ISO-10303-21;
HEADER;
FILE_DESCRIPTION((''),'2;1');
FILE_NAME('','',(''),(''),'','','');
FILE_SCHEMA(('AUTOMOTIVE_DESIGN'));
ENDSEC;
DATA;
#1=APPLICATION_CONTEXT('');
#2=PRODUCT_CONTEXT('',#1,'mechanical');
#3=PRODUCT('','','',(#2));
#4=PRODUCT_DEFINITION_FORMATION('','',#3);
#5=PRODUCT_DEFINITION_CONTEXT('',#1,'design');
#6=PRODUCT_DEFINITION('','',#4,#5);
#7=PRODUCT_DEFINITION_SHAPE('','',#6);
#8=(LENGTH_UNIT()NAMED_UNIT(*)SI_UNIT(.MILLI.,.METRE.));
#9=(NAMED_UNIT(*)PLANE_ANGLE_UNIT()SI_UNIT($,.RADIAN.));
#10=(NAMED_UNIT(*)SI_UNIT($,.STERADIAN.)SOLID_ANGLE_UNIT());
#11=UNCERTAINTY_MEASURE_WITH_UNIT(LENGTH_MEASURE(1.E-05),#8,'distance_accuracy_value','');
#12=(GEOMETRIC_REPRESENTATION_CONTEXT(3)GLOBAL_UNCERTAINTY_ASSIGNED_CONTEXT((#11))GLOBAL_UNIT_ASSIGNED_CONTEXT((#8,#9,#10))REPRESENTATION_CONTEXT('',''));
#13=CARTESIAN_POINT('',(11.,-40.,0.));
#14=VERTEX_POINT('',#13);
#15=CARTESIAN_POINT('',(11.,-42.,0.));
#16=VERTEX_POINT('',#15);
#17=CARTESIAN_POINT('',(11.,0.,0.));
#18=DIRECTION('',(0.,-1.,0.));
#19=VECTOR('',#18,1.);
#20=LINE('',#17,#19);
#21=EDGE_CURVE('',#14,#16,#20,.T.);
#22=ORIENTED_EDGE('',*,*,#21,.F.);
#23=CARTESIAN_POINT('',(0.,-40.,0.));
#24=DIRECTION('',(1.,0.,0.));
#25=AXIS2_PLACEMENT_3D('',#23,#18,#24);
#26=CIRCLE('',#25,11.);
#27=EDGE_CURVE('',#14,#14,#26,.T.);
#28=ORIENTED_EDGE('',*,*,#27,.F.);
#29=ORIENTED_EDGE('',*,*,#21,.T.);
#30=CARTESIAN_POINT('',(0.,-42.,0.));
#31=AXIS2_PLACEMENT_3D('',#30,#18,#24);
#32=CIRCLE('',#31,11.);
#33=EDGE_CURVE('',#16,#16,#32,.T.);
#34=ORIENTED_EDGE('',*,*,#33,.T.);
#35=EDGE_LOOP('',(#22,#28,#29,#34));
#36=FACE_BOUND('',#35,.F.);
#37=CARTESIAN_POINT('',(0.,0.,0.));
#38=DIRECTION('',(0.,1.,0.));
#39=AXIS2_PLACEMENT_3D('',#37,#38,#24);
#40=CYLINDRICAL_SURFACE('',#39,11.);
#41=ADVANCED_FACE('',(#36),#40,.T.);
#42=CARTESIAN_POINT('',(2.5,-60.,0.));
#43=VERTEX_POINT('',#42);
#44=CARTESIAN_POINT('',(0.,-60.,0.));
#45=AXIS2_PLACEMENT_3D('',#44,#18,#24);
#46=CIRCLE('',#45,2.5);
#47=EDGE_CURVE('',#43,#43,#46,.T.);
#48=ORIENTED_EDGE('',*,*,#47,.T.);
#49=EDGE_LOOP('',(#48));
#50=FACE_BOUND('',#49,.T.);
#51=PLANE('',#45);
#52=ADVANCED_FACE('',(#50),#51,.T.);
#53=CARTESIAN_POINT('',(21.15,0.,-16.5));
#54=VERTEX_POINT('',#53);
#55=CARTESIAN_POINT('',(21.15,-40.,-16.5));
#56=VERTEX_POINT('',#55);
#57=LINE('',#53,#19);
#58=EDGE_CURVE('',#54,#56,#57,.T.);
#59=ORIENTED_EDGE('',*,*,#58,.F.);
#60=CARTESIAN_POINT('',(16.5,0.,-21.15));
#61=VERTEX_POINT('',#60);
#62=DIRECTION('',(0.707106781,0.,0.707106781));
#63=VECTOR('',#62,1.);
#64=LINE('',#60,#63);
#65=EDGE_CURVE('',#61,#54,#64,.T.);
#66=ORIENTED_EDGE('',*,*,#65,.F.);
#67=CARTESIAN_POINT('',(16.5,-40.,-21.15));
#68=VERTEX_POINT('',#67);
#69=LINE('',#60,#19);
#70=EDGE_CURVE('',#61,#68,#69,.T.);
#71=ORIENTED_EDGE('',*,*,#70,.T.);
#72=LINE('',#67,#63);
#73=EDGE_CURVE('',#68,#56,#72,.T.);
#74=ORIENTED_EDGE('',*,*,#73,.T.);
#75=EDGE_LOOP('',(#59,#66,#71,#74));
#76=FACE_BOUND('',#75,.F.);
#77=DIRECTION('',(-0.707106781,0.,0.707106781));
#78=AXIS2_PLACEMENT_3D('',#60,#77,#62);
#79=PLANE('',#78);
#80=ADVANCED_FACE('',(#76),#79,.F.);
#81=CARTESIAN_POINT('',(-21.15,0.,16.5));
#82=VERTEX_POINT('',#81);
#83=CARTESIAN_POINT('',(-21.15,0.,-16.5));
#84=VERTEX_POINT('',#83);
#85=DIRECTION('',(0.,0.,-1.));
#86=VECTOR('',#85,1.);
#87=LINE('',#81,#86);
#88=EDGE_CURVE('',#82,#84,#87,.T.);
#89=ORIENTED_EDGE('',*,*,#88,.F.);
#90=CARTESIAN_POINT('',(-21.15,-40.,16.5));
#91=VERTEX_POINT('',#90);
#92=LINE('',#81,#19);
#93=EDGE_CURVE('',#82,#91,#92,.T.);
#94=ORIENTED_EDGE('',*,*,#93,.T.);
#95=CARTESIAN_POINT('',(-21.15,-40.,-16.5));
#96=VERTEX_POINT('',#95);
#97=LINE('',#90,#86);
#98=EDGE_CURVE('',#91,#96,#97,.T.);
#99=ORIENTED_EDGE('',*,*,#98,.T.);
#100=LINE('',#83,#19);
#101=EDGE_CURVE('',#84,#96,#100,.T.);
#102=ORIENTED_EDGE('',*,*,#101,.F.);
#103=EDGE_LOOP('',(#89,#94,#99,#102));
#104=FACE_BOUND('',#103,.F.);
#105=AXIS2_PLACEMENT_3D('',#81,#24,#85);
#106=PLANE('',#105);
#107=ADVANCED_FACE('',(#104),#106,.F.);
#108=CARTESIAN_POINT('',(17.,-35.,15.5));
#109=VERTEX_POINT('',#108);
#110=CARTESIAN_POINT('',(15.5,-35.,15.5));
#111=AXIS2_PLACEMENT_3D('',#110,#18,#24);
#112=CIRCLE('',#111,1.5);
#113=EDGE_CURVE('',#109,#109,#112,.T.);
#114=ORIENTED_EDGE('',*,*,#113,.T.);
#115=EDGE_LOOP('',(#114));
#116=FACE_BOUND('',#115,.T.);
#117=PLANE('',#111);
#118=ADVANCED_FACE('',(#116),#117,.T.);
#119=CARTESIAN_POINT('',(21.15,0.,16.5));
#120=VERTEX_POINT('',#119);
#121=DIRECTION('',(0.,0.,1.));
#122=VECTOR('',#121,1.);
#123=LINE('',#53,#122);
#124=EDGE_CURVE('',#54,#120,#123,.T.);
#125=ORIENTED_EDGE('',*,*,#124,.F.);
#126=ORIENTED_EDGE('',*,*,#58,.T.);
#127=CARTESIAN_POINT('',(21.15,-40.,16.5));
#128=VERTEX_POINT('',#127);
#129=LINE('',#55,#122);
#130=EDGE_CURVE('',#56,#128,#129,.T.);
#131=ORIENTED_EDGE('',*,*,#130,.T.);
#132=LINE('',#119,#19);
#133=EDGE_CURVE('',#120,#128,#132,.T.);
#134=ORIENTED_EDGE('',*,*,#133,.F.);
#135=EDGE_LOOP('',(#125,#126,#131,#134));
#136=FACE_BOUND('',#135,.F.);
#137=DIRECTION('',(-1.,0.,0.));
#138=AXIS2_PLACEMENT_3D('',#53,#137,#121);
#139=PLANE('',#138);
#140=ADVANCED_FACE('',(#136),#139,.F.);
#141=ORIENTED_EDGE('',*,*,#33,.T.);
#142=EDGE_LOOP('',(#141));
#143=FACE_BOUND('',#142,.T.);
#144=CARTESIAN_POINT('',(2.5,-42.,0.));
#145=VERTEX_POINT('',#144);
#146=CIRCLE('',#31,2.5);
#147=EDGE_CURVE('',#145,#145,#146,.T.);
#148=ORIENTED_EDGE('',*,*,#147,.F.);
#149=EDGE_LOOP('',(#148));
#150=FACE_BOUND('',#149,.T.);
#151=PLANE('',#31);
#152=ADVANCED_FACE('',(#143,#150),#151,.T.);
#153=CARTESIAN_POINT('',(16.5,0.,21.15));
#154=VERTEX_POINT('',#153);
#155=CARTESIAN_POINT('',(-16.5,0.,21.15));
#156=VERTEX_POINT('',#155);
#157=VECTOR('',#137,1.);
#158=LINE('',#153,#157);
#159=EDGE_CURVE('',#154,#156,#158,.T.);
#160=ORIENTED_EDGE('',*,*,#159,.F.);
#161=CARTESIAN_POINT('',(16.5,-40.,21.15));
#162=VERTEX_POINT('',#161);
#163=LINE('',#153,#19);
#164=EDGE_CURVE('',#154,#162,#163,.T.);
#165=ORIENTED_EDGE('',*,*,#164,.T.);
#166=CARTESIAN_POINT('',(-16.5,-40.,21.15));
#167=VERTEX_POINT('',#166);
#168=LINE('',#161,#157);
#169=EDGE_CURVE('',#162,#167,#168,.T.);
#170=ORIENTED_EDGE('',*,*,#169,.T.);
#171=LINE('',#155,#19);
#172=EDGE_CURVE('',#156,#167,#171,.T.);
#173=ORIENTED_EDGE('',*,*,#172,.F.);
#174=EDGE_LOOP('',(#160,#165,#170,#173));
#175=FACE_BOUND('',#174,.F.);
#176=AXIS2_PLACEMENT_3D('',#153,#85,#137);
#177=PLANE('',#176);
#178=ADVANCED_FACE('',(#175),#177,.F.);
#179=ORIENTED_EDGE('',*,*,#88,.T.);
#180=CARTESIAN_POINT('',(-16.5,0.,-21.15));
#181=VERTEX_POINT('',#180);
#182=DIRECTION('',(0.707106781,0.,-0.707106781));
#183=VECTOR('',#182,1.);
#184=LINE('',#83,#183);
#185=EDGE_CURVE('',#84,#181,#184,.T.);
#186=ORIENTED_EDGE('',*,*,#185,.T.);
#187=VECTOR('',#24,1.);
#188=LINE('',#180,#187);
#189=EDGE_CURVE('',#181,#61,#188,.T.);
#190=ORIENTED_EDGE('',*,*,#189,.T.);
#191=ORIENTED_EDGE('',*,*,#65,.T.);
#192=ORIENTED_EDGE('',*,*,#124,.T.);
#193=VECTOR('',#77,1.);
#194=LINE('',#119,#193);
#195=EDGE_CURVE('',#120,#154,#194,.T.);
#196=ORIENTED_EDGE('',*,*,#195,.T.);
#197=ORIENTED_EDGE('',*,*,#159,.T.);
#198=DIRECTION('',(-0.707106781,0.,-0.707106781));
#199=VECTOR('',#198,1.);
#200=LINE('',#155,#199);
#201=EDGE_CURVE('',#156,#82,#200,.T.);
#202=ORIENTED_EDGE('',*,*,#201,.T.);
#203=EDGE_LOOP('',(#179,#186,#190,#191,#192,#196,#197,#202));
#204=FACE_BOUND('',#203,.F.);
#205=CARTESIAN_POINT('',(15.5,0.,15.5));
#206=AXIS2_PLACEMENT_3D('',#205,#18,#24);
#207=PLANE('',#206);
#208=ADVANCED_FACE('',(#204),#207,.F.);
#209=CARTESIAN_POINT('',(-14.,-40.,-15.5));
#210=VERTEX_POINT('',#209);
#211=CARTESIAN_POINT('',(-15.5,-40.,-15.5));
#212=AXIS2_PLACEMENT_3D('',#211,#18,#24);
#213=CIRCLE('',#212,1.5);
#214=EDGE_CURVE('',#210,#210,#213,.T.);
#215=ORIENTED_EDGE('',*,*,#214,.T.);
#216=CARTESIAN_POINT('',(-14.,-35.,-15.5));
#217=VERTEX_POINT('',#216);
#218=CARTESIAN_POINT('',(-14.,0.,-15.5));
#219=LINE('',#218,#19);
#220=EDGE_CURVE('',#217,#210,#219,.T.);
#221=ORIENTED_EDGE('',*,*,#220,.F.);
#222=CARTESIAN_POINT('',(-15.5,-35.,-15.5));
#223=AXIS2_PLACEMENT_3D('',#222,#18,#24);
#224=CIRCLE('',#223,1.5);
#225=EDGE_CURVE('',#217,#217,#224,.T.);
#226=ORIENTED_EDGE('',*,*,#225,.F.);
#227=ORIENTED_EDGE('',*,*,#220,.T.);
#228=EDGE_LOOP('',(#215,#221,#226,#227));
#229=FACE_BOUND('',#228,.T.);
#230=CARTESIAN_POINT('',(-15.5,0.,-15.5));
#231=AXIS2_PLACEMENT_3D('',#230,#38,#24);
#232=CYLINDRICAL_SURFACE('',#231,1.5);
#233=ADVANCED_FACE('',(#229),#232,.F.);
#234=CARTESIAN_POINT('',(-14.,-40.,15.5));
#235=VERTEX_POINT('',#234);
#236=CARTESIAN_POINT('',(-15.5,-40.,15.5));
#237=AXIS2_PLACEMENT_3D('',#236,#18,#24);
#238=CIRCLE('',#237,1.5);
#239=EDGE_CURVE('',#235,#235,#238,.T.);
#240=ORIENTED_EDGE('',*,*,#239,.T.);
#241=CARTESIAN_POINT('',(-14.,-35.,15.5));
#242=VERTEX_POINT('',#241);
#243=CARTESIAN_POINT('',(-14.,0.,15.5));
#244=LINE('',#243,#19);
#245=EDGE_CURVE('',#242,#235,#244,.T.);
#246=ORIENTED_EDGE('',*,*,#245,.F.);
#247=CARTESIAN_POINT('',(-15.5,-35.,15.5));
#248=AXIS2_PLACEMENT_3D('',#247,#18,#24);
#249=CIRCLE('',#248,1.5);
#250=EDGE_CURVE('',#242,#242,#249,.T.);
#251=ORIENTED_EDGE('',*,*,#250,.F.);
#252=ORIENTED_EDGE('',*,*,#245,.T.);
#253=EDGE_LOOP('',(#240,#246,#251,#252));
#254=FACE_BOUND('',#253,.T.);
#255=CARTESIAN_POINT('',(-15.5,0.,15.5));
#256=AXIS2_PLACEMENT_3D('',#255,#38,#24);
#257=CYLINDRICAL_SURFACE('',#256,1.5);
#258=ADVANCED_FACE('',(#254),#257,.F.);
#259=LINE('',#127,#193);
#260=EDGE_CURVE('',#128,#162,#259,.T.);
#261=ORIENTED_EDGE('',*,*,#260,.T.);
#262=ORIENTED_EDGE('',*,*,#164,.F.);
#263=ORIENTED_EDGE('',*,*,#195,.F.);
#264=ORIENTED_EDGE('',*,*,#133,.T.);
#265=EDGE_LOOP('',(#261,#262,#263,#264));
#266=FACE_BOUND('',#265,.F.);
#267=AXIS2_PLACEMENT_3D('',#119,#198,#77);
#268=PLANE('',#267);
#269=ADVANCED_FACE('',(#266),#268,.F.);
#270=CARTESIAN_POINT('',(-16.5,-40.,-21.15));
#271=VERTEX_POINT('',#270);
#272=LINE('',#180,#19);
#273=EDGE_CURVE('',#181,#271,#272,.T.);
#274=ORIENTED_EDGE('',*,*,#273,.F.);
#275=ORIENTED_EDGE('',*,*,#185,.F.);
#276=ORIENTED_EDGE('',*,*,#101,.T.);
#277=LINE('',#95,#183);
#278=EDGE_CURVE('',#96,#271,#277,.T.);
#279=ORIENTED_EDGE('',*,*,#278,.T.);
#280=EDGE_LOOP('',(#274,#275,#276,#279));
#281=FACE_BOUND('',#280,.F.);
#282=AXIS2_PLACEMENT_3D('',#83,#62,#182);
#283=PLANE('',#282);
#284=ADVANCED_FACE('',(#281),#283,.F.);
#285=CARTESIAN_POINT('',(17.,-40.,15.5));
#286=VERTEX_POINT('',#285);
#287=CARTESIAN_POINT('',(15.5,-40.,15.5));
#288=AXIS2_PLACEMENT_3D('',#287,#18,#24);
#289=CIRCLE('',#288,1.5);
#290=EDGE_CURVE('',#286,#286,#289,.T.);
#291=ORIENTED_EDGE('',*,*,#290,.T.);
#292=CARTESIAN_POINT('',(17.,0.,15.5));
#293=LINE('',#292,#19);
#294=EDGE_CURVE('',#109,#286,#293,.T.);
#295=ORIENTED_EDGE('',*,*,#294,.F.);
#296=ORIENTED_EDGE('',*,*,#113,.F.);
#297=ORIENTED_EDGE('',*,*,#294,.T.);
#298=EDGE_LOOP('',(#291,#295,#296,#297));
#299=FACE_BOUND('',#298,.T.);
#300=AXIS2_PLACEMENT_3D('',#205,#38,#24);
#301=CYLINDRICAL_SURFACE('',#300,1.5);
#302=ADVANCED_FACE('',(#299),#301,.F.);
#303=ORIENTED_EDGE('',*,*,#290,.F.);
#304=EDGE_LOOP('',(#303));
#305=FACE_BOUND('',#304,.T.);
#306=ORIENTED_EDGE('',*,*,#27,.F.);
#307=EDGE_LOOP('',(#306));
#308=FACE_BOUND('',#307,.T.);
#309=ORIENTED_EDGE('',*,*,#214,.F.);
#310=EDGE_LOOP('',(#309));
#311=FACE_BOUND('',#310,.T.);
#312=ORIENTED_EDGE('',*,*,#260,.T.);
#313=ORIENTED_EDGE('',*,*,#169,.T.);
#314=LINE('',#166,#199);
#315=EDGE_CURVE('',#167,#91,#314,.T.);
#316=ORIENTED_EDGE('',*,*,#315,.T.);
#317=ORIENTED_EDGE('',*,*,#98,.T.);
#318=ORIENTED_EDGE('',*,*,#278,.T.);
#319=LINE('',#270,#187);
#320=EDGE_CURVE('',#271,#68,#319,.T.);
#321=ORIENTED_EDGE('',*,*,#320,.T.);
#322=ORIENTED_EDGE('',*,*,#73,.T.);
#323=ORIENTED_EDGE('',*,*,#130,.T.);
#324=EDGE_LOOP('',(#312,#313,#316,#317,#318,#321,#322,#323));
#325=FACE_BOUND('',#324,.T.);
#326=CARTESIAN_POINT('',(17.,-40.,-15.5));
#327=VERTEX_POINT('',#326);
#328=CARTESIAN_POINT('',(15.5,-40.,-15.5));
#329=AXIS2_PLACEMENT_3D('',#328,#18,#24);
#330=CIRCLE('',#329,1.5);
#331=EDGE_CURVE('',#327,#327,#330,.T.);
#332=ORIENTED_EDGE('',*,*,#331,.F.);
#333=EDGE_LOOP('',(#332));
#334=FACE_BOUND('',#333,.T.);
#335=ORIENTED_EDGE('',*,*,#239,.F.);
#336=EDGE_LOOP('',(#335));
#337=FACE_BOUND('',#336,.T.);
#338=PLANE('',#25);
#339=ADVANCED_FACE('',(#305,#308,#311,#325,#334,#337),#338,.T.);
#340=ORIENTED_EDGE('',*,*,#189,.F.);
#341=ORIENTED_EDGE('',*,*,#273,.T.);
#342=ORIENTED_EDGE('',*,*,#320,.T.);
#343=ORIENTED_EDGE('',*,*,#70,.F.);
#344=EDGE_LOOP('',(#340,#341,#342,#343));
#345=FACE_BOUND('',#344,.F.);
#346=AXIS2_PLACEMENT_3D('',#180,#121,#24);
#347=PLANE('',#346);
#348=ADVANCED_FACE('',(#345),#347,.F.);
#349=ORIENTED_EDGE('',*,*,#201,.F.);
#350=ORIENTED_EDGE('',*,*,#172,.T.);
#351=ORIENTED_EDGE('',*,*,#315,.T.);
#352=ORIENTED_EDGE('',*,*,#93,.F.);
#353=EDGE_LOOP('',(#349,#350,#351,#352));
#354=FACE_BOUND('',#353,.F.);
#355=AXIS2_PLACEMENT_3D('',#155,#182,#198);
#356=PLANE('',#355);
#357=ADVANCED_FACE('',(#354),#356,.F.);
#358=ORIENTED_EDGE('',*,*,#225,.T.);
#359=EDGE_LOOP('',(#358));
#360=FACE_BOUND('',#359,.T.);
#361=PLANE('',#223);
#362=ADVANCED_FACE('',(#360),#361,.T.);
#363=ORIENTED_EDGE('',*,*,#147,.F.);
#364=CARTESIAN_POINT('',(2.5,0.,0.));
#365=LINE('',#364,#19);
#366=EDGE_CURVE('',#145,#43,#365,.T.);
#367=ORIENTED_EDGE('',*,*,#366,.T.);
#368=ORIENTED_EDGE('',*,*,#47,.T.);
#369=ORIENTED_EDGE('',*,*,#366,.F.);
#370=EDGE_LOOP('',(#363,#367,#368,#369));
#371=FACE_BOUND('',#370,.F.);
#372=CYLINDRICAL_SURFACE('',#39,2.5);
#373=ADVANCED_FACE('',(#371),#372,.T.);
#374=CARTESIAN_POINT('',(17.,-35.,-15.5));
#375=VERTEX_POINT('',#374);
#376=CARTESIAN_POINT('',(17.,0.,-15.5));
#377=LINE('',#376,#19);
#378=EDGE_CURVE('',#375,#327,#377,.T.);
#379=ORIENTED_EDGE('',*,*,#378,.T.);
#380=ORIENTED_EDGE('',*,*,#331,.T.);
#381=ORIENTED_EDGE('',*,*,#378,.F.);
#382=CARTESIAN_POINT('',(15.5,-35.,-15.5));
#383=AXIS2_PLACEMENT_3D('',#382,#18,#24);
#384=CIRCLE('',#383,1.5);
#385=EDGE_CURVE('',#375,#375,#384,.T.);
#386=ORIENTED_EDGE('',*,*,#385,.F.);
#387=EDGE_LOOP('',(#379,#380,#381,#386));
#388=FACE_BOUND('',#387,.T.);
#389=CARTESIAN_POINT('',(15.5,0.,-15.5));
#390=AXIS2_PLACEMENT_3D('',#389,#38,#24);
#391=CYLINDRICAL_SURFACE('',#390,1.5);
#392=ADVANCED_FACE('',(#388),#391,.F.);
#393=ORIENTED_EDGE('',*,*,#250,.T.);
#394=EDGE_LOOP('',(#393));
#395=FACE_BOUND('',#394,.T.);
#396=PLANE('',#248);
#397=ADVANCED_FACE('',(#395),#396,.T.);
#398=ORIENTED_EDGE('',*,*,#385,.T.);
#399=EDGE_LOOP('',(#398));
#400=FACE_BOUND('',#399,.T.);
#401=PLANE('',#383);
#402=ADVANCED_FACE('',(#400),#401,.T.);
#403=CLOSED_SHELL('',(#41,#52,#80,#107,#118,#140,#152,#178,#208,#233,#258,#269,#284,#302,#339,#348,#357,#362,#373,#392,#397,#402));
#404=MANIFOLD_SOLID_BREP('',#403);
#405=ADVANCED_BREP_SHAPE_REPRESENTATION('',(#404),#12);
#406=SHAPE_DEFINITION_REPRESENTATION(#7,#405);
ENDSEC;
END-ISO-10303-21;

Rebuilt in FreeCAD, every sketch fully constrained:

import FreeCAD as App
import Part
import Sketcher

V = App.Vector
Q = App.Units.Quantity


def add_polygon(sketch, points):
    """Adds a closed chain of lines whose ends are joined by coincident constraints."""
    first, n = sketch.GeometryCount, len(points)
    for a, b in zip(points, points[1:] + points[:1]):
        sketch.addGeometry(Part.LineSegment(App.Vector(*a, 0), App.Vector(*b, 0)), False)
    for i in range(n):
        sketch.addConstraint(Sketcher.Constraint("Coincident", first + i, 2, first + (i + 1) % n, 1))

doc = App.newDocument("Part")
body = doc.addObject("PartDesign::Body", "Body")

# Sketch on XZ plane
sketch1 = body.newObject("Sketcher::SketchObject", "Sketch")
sketch1.AttachmentSupport = (doc.getObject("XZ_Plane"), [""])
sketch1.MapMode = "FlatFace"
add_polygon(sketch1, [(-16.5, -21.1), (16.5, -21.1), (21.1, -16.5), (21.1, 16.5), (16.5, 21.1), (-16.5, 21.1), (-21.1, 16.5), (-21.1, -16.5)])  # lines 0-7
sketch1.addGeometry(Part.Circle(V(-15.5, -15.5, 0), V(0, 0, 1), 1.5), False)  # 8
sketch1.addGeometry(Part.Circle(V(15.5, -15.5, 0), V(0, 0, 1), 1.5), False)  # 9
sketch1.addGeometry(Part.Circle(V(-15.5, 15.5, 0), V(0, 0, 1), 1.5), False)  # 10
sketch1.addGeometry(Part.Circle(V(0, 0, 0), V(0, 0, 1), 11), False)  # 11
sketch1.addGeometry(Part.Circle(V(15.5, 15.5, 0), V(0, 0, 1), 1.5), False)  # 12
sketch1.addConstraint(Sketcher.Constraint("Horizontal", 0))
sketch1.addConstraint(Sketcher.Constraint("Vertical", 2))
sketch1.addConstraint(Sketcher.Constraint("Horizontal", 4))
sketch1.addConstraint(Sketcher.Constraint("Vertical", 6))
sketch1.addConstraint(Sketcher.Constraint("Coincident", 11, 3, -1, 1))
sketch1.addConstraint(Sketcher.Constraint("Equal", 8, 9))
sketch1.addConstraint(Sketcher.Constraint("Equal", 9, 10))
sketch1.addConstraint(Sketcher.Constraint("Equal", 10, 12))
sketch1.addConstraint(Sketcher.Constraint("Symmetric", 9, 3, 10, 3, -1, 1))
sketch1.addConstraint(Sketcher.Constraint("Symmetric", 8, 3, 12, 3, -1, 1))
sketch1.addConstraint(Sketcher.Constraint("Symmetric", 0, 2, 4, 2, -1, 1))
sketch1.addConstraint(Sketcher.Constraint("Symmetric", 1, 2, 5, 2, -1, 1))
sketch1.addConstraint(Sketcher.Constraint("Symmetric", 8, 3, 9, 3, -2))
sketch1.addConstraint(Sketcher.Constraint("Perpendicular", 1, 3))
sketch1.addConstraint(Sketcher.Constraint("Perpendicular", 5, 7))
sketch1.addConstraint(Sketcher.Constraint("Horizontal", 2, 2, 5, 2))
sketch1.addConstraint(Sketcher.Constraint("Horizontal", 1, 2, 6, 2))
sketch1.addConstraint(Sketcher.Constraint("Vertical", 0, 2, 3, 2))
sketch1.addConstraint(Sketcher.Constraint("Equal", 4, 2))
sketch1.addConstraint(Sketcher.Constraint("Diameter", 8, Q("3 mm")))
sketch1.addConstraint(Sketcher.Constraint("Diameter", 11, Q("22 mm")))
sketch1.addConstraint(Sketcher.Constraint("DistanceX", 0, 1, 0, 2, Q("33 mm")))
sketch1.addConstraint(Sketcher.Constraint("DistanceX", 8, 3, 9, 3, Q("31 mm")))
sketch1.addConstraint(Sketcher.Constraint("DistanceY", 8, 3, 10, 3, Q("31 mm")))
sketch1.addConstraint(Sketcher.Constraint("DistanceY", 0, 2, -1, 1, Q("21.15 mm")))
pad1 = body.newObject("PartDesign::Pad", "Pad")
pad1.Profile = sketch1
pad1.Length = 40

# Sketch on XZ plane
sketch2 = body.newObject("Sketcher::SketchObject", "Sketch001")
sketch2.AttachmentSupport = (doc.getObject("XZ_Plane"), [""])
sketch2.MapMode = "FlatFace"
sketch2.addGeometry(Part.Circle(V(0, 0, 0), V(0, 0, 1), 11), False)
sketch2.addGeometry(Part.Circle(V(0, 0, 0), V(0, 0, 1), 2.5), False)
sketch2.addConstraint(Sketcher.Constraint("Coincident", 0, 3, -1, 1))
sketch2.addConstraint(Sketcher.Constraint("Coincident", 1, 3, -1, 1))
sketch2.addConstraint(Sketcher.Constraint("Diameter", 0, Q("22 mm")))
sketch2.addConstraint(Sketcher.Constraint("Diameter", 1, Q("5 mm")))
pad2 = body.newObject("PartDesign::Pad", "Pad001")
pad2.Profile = sketch2
pad2.Length = 42

# Sketch on XZ plane
sketch3 = body.newObject("Sketcher::SketchObject", "Sketch002")
sketch3.AttachmentSupport = (doc.getObject("XZ_Plane"), [""])
sketch3.MapMode = "FlatFace"
sketch3.addGeometry(Part.Circle(V(0, 0, 0), V(0, 0, 1), 2.5), False)
sketch3.addConstraint(Sketcher.Constraint("Coincident", 0, 3, -1, 1))
sketch3.addConstraint(Sketcher.Constraint("Diameter", 0, Q("5 mm")))
pad3 = body.newObject("PartDesign::Pad", "Pad002")
pad3.Profile = sketch3
pad3.Length = 60

# Sketch on XZ plane
sketch4 = body.newObject("Sketcher::SketchObject", "Sketch003")
sketch4.AttachmentSupport = (doc.getObject("XZ_Plane"), [""])
sketch4.MapMode = "FlatFace"
sketch4.addGeometry(Part.Circle(V(15.5, 15.5, 0), V(0, 0, 1), 1.5), False)
sketch4.addGeometry(Part.Circle(V(-15.5, 15.5, 0), V(0, 0, 1), 1.5), False)
sketch4.addGeometry(Part.Circle(V(-15.5, -15.5, 0), V(0, 0, 1), 1.5), False)
sketch4.addGeometry(Part.Circle(V(15.5, -15.5, 0), V(0, 0, 1), 1.5), False)
sketch4.addConstraint(Sketcher.Constraint("Equal", 0, 1))
sketch4.addConstraint(Sketcher.Constraint("Equal", 1, 2))
sketch4.addConstraint(Sketcher.Constraint("Equal", 2, 3))
sketch4.addConstraint(Sketcher.Constraint("Symmetric", 0, 3, 2, 3, -1, 1))
sketch4.addConstraint(Sketcher.Constraint("Symmetric", 1, 3, 3, 3, -1, 1))
sketch4.addConstraint(Sketcher.Constraint("Symmetric", 0, 3, 1, 3, -2))
sketch4.addConstraint(Sketcher.Constraint("Diameter", 0, Q("3 mm")))
sketch4.addConstraint(Sketcher.Constraint("DistanceX", 1, 3, 0, 3, Q("31 mm")))
sketch4.addConstraint(Sketcher.Constraint("DistanceY", 2, 3, 1, 3, Q("31 mm")))
pad4 = body.newObject("PartDesign::Pad", "Pad003")
pad4.Profile = sketch4
pad4.Length = 35

doc.recompute()
